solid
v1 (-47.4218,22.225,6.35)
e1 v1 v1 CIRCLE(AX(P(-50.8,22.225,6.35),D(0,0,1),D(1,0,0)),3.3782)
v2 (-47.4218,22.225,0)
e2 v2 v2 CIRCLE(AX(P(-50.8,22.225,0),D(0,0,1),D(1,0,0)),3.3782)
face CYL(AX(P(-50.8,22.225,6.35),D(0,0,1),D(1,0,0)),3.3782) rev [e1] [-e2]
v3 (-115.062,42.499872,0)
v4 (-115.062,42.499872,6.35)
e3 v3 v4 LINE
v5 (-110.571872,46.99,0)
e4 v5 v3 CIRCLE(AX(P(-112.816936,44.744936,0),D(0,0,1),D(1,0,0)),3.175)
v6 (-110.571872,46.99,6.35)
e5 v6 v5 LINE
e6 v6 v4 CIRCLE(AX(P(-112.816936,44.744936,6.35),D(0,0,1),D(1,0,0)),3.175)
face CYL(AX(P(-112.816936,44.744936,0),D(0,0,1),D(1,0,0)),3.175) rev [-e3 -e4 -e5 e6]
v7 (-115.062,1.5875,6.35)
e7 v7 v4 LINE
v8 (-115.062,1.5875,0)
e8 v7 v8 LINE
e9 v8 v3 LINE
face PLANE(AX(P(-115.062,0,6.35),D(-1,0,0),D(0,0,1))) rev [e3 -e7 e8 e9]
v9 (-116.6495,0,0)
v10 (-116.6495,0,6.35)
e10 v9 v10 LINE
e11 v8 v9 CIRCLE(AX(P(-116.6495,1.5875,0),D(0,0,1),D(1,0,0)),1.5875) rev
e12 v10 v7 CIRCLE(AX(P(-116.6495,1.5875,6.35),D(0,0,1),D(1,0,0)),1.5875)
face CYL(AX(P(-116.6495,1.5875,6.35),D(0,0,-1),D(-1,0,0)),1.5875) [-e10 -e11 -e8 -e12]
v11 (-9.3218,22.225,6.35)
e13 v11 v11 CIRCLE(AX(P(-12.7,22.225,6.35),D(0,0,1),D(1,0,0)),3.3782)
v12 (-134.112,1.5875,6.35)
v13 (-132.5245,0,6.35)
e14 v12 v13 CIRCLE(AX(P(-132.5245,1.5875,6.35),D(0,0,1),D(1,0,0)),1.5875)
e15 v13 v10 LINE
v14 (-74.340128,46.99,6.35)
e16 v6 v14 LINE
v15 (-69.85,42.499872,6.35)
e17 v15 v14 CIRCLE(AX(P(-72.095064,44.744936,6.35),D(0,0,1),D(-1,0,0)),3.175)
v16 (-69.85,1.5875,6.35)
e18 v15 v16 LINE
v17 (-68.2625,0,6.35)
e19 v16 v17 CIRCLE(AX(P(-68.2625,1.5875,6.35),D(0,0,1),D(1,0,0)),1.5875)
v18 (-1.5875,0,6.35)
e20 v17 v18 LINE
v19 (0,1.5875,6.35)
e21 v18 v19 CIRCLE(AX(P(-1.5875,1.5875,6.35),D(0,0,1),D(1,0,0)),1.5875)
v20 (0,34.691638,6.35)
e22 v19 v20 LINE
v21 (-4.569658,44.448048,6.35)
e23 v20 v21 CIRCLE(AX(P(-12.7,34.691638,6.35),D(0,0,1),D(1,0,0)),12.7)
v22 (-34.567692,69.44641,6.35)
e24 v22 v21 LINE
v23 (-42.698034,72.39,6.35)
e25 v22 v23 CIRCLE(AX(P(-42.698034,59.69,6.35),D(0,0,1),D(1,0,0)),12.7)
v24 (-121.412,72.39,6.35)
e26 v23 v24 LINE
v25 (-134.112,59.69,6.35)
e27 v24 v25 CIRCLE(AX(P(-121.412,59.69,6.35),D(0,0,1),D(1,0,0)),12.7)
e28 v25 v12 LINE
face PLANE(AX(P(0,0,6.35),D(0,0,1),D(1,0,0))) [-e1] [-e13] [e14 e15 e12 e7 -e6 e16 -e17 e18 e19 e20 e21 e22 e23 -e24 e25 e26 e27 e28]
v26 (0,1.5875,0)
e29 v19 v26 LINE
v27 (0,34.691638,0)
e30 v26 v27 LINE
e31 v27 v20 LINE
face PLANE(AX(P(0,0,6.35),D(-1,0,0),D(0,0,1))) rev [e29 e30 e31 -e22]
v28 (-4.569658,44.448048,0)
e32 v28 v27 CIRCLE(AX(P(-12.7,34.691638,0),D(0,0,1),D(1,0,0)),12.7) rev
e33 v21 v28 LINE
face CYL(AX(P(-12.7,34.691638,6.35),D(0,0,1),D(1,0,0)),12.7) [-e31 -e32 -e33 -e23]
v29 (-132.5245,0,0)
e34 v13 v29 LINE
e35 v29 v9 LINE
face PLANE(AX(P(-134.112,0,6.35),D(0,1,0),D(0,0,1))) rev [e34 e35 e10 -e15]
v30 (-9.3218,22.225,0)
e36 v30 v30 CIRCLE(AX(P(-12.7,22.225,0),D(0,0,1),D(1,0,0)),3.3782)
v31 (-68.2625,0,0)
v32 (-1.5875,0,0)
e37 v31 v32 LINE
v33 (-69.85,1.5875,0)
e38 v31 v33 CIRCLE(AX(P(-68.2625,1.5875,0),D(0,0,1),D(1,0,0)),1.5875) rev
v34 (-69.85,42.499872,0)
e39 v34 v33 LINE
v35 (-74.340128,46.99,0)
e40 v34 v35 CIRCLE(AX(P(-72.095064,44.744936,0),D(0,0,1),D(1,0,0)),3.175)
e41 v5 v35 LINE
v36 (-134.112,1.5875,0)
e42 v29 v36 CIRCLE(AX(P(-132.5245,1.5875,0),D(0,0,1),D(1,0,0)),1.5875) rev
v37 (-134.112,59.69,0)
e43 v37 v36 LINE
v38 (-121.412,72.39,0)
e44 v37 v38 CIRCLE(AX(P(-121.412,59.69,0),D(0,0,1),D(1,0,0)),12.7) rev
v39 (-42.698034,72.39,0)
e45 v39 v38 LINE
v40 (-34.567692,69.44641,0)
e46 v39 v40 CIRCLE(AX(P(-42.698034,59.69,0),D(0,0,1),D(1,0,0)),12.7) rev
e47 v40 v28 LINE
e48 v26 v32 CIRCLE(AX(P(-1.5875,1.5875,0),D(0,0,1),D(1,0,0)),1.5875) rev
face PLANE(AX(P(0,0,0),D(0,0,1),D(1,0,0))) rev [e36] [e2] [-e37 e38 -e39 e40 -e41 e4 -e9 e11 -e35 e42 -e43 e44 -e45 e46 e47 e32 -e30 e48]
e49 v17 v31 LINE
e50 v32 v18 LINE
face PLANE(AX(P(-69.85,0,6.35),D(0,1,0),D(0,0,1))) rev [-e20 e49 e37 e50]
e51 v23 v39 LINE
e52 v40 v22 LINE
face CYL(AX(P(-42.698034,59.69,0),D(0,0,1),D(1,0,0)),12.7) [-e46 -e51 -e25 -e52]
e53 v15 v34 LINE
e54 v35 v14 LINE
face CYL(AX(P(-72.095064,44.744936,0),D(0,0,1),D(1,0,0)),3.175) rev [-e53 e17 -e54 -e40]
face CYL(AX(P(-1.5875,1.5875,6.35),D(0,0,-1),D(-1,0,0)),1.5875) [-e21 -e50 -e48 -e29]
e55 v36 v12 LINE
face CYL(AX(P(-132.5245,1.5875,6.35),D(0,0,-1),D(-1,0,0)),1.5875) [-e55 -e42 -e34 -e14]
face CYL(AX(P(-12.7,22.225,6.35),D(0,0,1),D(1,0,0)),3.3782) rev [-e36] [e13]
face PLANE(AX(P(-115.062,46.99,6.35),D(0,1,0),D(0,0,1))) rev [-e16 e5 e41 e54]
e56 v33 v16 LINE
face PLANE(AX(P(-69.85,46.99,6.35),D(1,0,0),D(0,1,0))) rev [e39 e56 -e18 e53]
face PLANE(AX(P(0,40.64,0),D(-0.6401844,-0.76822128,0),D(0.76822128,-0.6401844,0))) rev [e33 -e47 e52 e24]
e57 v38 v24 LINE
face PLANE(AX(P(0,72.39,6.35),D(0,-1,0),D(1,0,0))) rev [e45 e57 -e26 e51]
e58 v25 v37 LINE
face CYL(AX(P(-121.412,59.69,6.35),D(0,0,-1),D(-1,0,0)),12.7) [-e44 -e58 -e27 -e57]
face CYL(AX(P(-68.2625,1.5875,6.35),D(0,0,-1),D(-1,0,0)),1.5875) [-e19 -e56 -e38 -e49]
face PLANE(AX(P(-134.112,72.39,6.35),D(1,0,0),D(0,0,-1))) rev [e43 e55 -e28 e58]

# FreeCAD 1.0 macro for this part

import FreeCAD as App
import Part
import Sketcher

V = App.Vector
Q = App.Units.Quantity


def edges_at(feature, points):
    """Names of the edges that pass closest to the given points."""
    edges = feature.Shape.Edges
    near = lambda p: min(range(len(edges)), key=lambda i: edges[i].distToShape(Part.Vertex(*p))[0])
    return sorted({f"Edge{near(p) + 1}" for p in points})

doc = App.newDocument("Part")
body = doc.addObject("PartDesign::Body", "Body")

sketch1 = body.newObject("Sketcher::SketchObject", "Sketch")
sketch1.AttachmentSupport = (doc.getObject("XY_Plane"), [""])
sketch1.MapMode = "FlatFace"
sketch1.addGeometry([
    Part.LineSegment(V(0, 0, 0), V(0, 72.39, 0)),
    Part.LineSegment(V(0, 72.39, 0), V(-134.112, 72.39, 0)),
    Part.LineSegment(V(-134.112, 72.39, 0), V(-134.112, 0, 0)),
    Part.LineSegment(V(-134.112, 0, 0), V(-115.062, 0, 0)),
    Part.LineSegment(V(-115.062, 0, 0), V(-115.062, 46.99, 0)),
    Part.LineSegment(V(-115.062, 46.99, 0), V(-69.85, 46.99, 0)),
    Part.LineSegment(V(-69.85, 46.99, 0), V(-69.85, 0, 0)),
    Part.LineSegment(V(-69.85, 0, 0), V(0, 0, 0)),
], False)
sketch1.addConstraint([
    Sketcher.Constraint("Coincident", 0, 2, 1, 1),
    Sketcher.Constraint("Coincident", 1, 2, 2, 1),
    Sketcher.Constraint("Coincident", 2, 2, 3, 1),
    Sketcher.Constraint("Coincident", 3, 2, 4, 1),
    Sketcher.Constraint("Coincident", 4, 2, 5, 1),
    Sketcher.Constraint("Coincident", 5, 2, 6, 1),
    Sketcher.Constraint("Coincident", 6, 2, 7, 1),
    Sketcher.Constraint("Coincident", 7, 2, 0, 1),
    Sketcher.Constraint("Vertical", 0),
    Sketcher.Constraint("Horizontal", 1),
    Sketcher.Constraint("Vertical", 2),
    Sketcher.Constraint("Horizontal", 3),
    Sketcher.Constraint("Vertical", 4),
    Sketcher.Constraint("Horizontal", 5),
    Sketcher.Constraint("Vertical", 6),
    Sketcher.Constraint("Horizontal", 7),
    Sketcher.Constraint("Coincident", 7, 2, -1, 1),
    Sketcher.Constraint("PointOnObject", 2, 2, -1),
    Sketcher.Constraint("DistanceY", 4, 2, 1, 2, Q("1 in")),
    Sketcher.Constraint("DistanceX", 1, 2, 1, 1, Q("5.28 in")),
    Sketcher.Constraint("DistanceX", 3, 1, 3, 2, Q("0.75 in")),
    Sketcher.Constraint("DistanceX", 5, 1, 5, 2, Q("1.78 in")),
    Sketcher.Constraint("DistanceY", 0, 1, 0, 2, Q("2.85 in")),
])
pad1 = body.newObject("PartDesign::Pad", "Pad")
pad1.Profile = sketch1
pad1.Length = Q("0.25 in")

sketch2 = body.newObject("Sketcher::SketchObject", "Sketch001")
sketch2.AttachmentSupport = (doc.getObject("XY_Plane"), [""])
sketch2.MapMode = "FlatFace"
sketch2.AttachmentOffset = App.Placement(V(0, 0, 0.25 * 25.4), App.Rotation())
sketch2.addGeometry([
    Part.Circle(V(-50.8, 22.225, 0), V(0, 0, 1), 3.3782),
    Part.Circle(V(-12.7, 22.225, 0), V(0, 0, 1), 3.3782),
], False)
sketch2.addConstraint([
    Sketcher.Constraint("Equal", 0, 1),
    Sketcher.Constraint("Horizontal", 0, 3, 1, 3),
    Sketcher.Constraint("Diameter", 0, Q("0.266 in")),
    Sketcher.Constraint("DistanceX", 0, 3, -1, 1, Q("2 in")),
    Sketcher.Constraint("DistanceX", 1, 3, -1, 1, Q("0.5 in")),
    Sketcher.Constraint("DistanceY", -1, 1, 0, 3, Q("0.875 in")),
])
doc.recompute()
hole = body.newObject("PartDesign::Hole", "Hole")
hole.Profile = sketch2
hole.ThreadType = "None"
hole.Diameter = Q("0.266 in")
hole.DepthType = "ThroughAll"

sketch3 = body.newObject("Sketcher::SketchObject", "Sketch002")
sketch3.AttachmentSupport = (doc.getObject("XY_Plane"), [""])
sketch3.MapMode = "FlatFace"
sketch3.AttachmentOffset = App.Placement(V(0, 0, 0.25 * 25.4), App.Rotation())
sketch3.addGeometry([
    Part.LineSegment(V(0, 40.64, 0), V(0, 72.39, 0)),
    Part.LineSegment(V(0, 72.39, 0), V(-38.1, 72.39, 0)),
    Part.LineSegment(V(-38.1, 72.39, 0), V(0, 40.64, 0)),
], False)
sketch3.addConstraint([
    Sketcher.Constraint("Coincident", 0, 2, 1, 1),
    Sketcher.Constraint("Coincident", 1, 2, 2, 1),
    Sketcher.Constraint("Coincident", 2, 2, 0, 1),
    Sketcher.Constraint("Vertical", 0),
    Sketcher.Constraint("Horizontal", 1),
    Sketcher.Constraint("PointOnObject", 0, 2, -2),
    Sketcher.Constraint("DistanceX", 1, 2, 1, 1, Q("1.5 in")),
    Sketcher.Constraint("DistanceY", 0, 1, 0, 2, Q("1.25 in")),
    Sketcher.Constraint("DistanceY", -1, 1, 2, 2, Q("1.6 in")),
])
pocket1 = body.newObject("PartDesign::Pocket", "Pocket")
pocket1.Profile = sketch3
pocket1.Type = "ThroughAll"
doc.recompute()

fillet = body.newObject("PartDesign::Fillet", "Fillet")
fillet.Base = (pocket1, edges_at(pocket1, [
    (-69.85, 0, 3.175),
    (-115.062, 0, 3.175),
    (-134.112, 0, 3.175),
    (0, 0, 3.175),
]))
fillet.Radius = Q("0.0625 in")
doc.recompute()

fillet2 = body.newObject("PartDesign::Fillet", "Fillet001")
fillet2.Base = (fillet, edges_at(fillet, [(-134.112, 72.39, 3.175), (-38.1, 72.39, 3.175), (0, 40.64, 3.175)]))
fillet2.Radius = Q("0.5 in")

sketch4 = body.newObject("Sketcher::SketchObject", "Sketch003")
sketch4.AttachmentSupport = (doc.getObject("XY_Plane"), [""])
sketch4.MapMode = "FlatFace"
sketch4.AttachmentOffset = App.Placement(V(0, 0, 0.25 * 25.4), App.Rotation())
sketch4.addGeometry([
    Part.Circle(V(-112.816936, 44.744936, 0), V(0, 0, 1), 3.175),
    Part.Circle(V(-72.095064, 44.744936, 0), V(0, 0, 1), 3.175),
], False)
sketch4.addConstraint([
    Sketcher.Constraint("Equal", 0, 1),
    Sketcher.Constraint("Horizontal", 0, 3, 1, 3),
    Sketcher.Constraint("Diameter", 0, Q("0.25 in")),
    Sketcher.Constraint("DistanceX", 0, 3, 1, 3, 40.721872),
    Sketcher.Constraint("DistanceX", 0, 3, -1, 1, 112.816936),
    Sketcher.Constraint("DistanceY", -1, 1, 0, 3, 44.744936),
])
pocket2 = body.newObject("PartDesign::Pocket", "Pocket001")
pocket2.Profile = sketch4
pocket2.Type = "ThroughAll"

doc.recompute()
